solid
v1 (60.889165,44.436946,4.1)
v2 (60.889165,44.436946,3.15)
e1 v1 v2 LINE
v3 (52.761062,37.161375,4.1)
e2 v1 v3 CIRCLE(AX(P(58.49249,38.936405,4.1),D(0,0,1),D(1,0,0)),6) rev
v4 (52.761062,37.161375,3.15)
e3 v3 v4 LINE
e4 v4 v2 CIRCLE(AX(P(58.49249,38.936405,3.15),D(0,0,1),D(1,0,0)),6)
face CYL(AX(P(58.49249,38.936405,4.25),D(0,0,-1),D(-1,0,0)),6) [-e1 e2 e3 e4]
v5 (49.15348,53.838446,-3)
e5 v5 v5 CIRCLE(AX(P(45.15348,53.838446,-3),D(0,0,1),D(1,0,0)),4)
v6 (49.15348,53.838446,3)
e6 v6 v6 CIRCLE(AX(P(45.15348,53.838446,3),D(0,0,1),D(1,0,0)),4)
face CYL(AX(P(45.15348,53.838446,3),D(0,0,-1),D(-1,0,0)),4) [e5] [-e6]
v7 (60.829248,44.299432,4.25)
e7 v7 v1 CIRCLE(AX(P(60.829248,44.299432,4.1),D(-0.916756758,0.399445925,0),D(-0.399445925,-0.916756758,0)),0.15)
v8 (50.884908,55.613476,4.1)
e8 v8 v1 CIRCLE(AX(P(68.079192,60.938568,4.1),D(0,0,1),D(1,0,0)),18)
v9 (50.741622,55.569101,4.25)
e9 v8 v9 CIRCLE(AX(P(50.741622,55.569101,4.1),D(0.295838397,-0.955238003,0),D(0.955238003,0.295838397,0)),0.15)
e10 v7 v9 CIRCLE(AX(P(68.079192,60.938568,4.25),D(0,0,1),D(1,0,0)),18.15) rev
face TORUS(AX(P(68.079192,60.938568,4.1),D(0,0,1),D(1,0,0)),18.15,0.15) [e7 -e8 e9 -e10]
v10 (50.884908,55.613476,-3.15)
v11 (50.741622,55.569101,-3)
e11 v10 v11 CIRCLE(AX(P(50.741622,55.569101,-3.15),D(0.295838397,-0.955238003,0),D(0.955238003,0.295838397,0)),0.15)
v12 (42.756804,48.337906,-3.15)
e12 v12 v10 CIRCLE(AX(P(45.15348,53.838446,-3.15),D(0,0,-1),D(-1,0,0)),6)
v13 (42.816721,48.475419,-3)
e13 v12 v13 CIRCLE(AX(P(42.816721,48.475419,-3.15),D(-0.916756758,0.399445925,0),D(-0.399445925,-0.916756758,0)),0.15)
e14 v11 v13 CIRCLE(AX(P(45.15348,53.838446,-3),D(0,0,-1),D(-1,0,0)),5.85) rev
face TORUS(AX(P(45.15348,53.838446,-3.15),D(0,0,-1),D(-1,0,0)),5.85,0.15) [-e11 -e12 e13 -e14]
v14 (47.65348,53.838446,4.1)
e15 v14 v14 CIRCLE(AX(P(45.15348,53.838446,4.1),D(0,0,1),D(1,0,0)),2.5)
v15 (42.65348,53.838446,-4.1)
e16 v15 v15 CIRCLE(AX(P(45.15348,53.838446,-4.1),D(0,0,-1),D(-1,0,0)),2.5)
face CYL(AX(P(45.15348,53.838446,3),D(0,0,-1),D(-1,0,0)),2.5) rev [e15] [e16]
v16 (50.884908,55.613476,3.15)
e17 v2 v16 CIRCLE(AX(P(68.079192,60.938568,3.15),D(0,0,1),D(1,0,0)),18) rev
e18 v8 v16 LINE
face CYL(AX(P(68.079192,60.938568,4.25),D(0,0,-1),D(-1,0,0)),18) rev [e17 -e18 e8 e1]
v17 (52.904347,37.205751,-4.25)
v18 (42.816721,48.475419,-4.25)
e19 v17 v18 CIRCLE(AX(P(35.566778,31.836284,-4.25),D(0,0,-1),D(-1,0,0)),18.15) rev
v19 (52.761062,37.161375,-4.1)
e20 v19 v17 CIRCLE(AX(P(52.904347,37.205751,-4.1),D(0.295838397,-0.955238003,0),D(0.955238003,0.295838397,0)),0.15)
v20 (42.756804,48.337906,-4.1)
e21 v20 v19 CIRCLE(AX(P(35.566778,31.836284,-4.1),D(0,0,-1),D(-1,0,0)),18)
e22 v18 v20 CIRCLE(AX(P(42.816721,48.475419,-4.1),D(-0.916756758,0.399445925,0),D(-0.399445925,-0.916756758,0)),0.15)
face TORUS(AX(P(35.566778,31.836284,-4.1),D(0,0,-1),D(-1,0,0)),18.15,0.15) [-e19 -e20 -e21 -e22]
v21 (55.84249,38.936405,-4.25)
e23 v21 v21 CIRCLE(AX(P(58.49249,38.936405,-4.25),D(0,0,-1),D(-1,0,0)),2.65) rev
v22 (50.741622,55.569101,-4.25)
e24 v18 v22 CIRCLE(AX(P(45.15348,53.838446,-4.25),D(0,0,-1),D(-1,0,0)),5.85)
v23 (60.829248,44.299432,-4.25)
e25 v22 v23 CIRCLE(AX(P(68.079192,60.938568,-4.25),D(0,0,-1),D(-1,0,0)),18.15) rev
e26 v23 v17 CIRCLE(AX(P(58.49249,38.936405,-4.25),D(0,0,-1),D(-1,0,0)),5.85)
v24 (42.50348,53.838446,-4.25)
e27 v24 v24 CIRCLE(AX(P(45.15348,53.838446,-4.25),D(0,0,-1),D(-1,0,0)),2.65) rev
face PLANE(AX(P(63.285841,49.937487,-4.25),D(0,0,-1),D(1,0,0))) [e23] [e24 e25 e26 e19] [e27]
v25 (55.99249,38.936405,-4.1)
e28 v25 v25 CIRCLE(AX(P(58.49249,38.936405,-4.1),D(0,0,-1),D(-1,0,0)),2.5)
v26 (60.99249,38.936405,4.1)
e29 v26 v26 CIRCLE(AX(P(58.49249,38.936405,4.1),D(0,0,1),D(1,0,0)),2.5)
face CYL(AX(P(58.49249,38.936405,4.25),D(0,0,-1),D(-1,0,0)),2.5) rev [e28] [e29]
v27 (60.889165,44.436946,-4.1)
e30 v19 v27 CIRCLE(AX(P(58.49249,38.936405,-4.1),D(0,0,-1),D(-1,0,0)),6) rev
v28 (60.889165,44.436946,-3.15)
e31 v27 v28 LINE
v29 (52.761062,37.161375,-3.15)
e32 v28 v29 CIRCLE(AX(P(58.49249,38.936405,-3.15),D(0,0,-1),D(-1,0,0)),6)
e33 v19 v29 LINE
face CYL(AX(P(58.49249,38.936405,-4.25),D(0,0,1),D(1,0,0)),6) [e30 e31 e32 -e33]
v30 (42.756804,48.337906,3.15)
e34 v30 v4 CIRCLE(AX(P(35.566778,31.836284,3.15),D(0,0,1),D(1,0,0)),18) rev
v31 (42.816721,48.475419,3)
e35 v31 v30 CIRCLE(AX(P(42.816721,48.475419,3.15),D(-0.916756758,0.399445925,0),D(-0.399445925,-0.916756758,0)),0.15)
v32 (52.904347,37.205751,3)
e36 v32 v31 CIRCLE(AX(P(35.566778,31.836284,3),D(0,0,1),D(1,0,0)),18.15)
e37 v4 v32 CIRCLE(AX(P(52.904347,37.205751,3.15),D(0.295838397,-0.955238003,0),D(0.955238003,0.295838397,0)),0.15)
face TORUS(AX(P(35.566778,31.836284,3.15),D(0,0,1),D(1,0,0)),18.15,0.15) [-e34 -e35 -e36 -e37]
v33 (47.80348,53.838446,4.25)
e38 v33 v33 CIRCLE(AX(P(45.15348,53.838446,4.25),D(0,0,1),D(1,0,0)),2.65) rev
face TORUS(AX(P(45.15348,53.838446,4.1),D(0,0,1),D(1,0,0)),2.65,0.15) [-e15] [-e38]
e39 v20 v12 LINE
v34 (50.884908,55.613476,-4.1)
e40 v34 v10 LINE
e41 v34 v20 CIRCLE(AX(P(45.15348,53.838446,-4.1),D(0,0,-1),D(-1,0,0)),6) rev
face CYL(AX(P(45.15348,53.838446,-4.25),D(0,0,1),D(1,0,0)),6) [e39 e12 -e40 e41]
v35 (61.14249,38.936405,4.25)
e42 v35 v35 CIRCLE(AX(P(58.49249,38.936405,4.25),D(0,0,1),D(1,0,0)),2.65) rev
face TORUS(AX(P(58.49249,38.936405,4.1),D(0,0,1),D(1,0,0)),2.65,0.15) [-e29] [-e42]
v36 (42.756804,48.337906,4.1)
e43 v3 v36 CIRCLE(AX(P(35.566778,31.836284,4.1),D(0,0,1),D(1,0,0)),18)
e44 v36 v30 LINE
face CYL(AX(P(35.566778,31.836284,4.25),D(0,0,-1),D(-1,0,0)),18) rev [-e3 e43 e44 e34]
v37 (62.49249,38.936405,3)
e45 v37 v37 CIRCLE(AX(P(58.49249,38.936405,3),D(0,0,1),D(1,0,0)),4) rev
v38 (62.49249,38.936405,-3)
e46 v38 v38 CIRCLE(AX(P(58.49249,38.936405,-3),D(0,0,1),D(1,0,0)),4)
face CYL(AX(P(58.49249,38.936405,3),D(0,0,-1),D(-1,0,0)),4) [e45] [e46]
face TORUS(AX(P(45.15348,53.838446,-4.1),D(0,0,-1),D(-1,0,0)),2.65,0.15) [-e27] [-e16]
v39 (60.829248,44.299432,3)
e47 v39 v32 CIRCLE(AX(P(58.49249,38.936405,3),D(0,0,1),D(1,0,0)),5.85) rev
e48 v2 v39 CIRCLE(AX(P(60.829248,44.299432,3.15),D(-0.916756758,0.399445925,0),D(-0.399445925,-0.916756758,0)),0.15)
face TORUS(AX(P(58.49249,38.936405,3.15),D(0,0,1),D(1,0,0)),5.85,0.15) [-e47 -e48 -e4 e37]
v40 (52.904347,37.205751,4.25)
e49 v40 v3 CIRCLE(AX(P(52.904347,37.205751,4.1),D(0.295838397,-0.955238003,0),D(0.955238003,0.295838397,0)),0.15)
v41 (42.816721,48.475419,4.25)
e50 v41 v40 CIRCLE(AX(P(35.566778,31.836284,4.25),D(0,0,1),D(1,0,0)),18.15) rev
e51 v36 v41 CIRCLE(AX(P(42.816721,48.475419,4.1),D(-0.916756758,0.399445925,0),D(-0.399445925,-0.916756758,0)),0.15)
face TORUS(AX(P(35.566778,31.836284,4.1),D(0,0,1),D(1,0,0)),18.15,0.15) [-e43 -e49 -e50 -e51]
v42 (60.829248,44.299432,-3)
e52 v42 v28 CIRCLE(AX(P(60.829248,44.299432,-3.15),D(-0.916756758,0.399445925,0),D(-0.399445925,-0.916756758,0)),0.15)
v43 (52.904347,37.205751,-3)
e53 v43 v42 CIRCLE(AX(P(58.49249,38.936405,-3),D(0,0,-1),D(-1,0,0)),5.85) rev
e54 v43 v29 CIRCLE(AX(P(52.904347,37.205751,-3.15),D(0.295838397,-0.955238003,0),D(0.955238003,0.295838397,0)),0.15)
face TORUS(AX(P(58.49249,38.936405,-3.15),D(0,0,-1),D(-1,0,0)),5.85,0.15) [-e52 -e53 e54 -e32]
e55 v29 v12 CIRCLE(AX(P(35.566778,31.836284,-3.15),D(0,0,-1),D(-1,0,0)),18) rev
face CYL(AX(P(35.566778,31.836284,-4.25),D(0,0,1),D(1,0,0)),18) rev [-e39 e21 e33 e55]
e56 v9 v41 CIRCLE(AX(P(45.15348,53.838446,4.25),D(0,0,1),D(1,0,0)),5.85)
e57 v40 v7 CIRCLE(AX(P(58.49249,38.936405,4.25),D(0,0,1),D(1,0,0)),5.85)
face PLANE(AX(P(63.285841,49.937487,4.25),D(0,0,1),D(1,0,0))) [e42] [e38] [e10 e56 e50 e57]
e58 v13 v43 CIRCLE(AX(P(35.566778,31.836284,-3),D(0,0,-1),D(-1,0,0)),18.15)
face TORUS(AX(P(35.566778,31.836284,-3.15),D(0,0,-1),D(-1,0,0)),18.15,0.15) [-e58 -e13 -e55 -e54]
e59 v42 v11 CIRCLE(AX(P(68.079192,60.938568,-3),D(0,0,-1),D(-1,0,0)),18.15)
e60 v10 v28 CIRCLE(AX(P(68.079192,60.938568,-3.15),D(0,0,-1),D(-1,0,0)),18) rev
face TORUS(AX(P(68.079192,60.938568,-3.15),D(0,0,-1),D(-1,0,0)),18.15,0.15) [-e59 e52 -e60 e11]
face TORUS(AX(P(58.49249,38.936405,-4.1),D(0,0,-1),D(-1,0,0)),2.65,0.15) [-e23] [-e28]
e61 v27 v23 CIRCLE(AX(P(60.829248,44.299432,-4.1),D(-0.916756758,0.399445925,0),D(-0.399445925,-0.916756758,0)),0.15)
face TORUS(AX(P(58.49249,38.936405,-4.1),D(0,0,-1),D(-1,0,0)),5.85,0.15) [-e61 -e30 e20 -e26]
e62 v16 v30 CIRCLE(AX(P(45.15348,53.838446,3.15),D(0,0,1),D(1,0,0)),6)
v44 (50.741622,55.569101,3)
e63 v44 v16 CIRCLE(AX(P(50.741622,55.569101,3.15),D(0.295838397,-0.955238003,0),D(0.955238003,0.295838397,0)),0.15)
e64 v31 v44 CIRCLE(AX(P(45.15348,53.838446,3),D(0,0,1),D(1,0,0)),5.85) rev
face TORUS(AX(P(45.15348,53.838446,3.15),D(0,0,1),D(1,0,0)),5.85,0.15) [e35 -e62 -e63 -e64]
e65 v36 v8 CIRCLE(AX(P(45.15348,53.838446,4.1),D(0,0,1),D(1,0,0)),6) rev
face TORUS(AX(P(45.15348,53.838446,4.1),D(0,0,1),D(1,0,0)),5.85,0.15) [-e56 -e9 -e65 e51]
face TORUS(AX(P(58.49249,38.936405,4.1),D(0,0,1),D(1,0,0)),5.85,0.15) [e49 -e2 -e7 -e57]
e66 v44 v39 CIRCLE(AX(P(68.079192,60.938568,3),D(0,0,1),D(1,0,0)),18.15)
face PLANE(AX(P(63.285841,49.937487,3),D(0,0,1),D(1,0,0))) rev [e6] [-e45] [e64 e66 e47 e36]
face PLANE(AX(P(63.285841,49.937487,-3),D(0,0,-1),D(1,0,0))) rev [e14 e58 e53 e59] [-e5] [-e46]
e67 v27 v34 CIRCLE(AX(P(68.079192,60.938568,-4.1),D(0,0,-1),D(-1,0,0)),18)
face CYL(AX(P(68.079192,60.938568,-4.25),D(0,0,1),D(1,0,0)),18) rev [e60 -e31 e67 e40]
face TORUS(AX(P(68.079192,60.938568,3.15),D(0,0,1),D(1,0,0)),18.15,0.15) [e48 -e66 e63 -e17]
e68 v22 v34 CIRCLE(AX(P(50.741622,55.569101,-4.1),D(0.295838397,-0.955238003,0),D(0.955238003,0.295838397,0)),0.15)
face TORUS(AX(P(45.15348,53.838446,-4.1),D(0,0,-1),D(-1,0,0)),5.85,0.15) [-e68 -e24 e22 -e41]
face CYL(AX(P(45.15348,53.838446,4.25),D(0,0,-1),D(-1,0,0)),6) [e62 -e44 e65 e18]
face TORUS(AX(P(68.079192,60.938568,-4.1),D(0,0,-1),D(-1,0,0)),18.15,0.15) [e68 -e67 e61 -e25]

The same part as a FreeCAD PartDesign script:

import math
import FreeCAD as App
import Part
import Sketcher

V = App.Vector
Q = App.Units.Quantity


def edges_at(feature, points):
    """Names of the edges that pass closest to the given points."""
    edges = feature.Shape.Edges
    near = lambda p: min(range(len(edges)), key=lambda i: edges[i].distToShape(Part.Vertex(*p))[0])
    return sorted({f"Edge{near(p) + 1}" for p in points})

doc = App.newDocument("Part")
params = doc.addObject("Spreadsheet::Sheet", "Params")
for row, (alias, value) in enumerate([
    ("sketch1_diameter", "8 mm"),
    ("sketch1_diameter2", "5 mm"),
    ("pad1_length", "6 mm"),
    ("sketch2_diameter", "8 mm"),
    ("sketch2_diameter2", "5 mm"),
    ("pad2_length", "6 mm"),
    ("sketch3_diameter", "5 mm"),
    ("sketch3_radius", "18 mm"),
    ("sketch3_radius2", "6 mm"),
    ("pad3_length", "1.25 mm"),
    ("fillet_radius", "0.15 mm"),
], start=1):
    params.set(f"A{row}", alias)
    params.set(f"B{row}", "=" + value)
    params.setAlias(f"B{row}", alias)

body = doc.addObject("PartDesign::Body", "Body")

# Sketch on XY plane
sketch1 = body.newObject("Sketcher::SketchObject", "Sketch")
sketch1.AttachmentSupport = (doc.getObject("XY_Plane"), [""])
sketch1.MapMode = "FlatFace"
sketch1.addGeometry(Part.Circle(V(45.2, 53.8, 0), V(0, 0, 1), 4), False)
sketch1.addGeometry(Part.Circle(V(45.2, 53.8, 0), V(0, 0, 1), 2.5), False)
sketch1.addConstraint(Sketcher.Constraint("Coincident", 1, 3, 0, 3))
sketch1.addConstraint(Sketcher.Constraint("Diameter", 0, Q("8 mm")))
sketch1.addConstraint(Sketcher.Constraint("Diameter", 1, Q("5 mm")))
sketch1.addConstraint(Sketcher.Constraint("DistanceX", -1, 1, 0, 3, Q("45.15348 mm")))
sketch1.addConstraint(Sketcher.Constraint("DistanceY", -1, 1, 0, 3, Q("53.838446 mm")))
sketch1.setExpression("Constraints[1]", "Params.sketch1_diameter")
sketch1.setExpression("Constraints[2]", "Params.sketch1_diameter2")
pad1 = body.newObject("PartDesign::Pad", "Pad")
pad1.Profile = sketch1
pad1.setExpression("Length", "Params.pad1_length")
pad1.Midplane = True
body2 = doc.addObject("PartDesign::Body", "Body001")

# Sketch on XY plane
sketch2 = body2.newObject("Sketcher::SketchObject", "Sketch001")
sketch2.AttachmentSupport = (doc.getObject("XY_Plane001"), [""])
sketch2.MapMode = "FlatFace"
sketch2.addGeometry(Part.Circle(V(58.5, 38.9, 0), V(0, 0, 1), 4), False)
sketch2.addGeometry(Part.Circle(V(58.5, 38.9, 0), V(0, 0, 1), 2.5), False)
sketch2.addConstraint(Sketcher.Constraint("Coincident", 1, 3, 0, 3))
sketch2.addConstraint(Sketcher.Constraint("Diameter", 0, Q("8 mm")))
sketch2.addConstraint(Sketcher.Constraint("Diameter", 1, Q("5 mm")))
sketch2.addConstraint(Sketcher.Constraint("DistanceX", -1, 1, 0, 3, Q("58.49249 mm")))
sketch2.addConstraint(Sketcher.Constraint("DistanceY", -1, 1, 0, 3, Q("38.936405 mm")))
sketch2.setExpression("Constraints[1]", "Params.sketch2_diameter")
sketch2.setExpression("Constraints[2]", "Params.sketch2_diameter2")
pad2 = body2.newObject("PartDesign::Pad", "Pad001")
pad2.Profile = sketch2
pad2.setExpression("Length", "Params.pad2_length")
pad2.Midplane = True
body.AllowCompound = True
doc.recompute()

boolean = body.newObject("PartDesign::Boolean", "Boolean")
boolean.Type = "Fuse"
boolean.addObjects([body2])

# Sketch on XY plane
sketch3 = body.newObject("Sketcher::SketchObject", "Sketch002")
sketch3.AttachmentSupport = (doc.getObject("XY_Plane"), [""])
sketch3.MapMode = "FlatFace"
sketch3.AttachmentOffset = App.Placement(V(0, 0, 3), App.Rotation())
sketch3.addGeometry(Part.ArcOfCircle(Part.Circle(V(35.6, 31.8, 0), V(0, 0, 1), 18), math.radians(17), math.radians(66)), False)
sketch3.addGeometry(Part.ArcOfCircle(Part.Circle(V(58.5, 38.9, 0), V(0, 0, 1), 6), math.radians(-163), math.radians(66)), False)
sketch3.addGeometry(Part.ArcOfCircle(Part.Circle(V(68.1, 60.9, 0), V(0, 0, 1), 18), math.radians(-163), math.radians(-114)), False)
sketch3.addGeometry(Part.ArcOfCircle(Part.Circle(V(45.2, 53.8, 0), V(0, 0, 1), 6), math.radians(17), math.radians(246)), False)
sketch3.addGeometry(Part.Circle(V(58.5, 38.9, 0), V(0, 0, 1), 2.5), False)
sketch3.addGeometry(Part.Circle(V(45.2, 53.8, 0), V(0, 0, 1), 2.5), False)
sketch3.addConstraint(Sketcher.Constraint("Tangent", 0, 1, 1, 1))
sketch3.addConstraint(Sketcher.Constraint("Tangent", 1, 2, 2, 2))
sketch3.addConstraint(Sketcher.Constraint("Tangent", 2, 1, 3, 1))
sketch3.addConstraint(Sketcher.Constraint("Tangent", 3, 2, 0, 2))
sketch3.addConstraint(Sketcher.Constraint("Coincident", 4, 3, 1, 3))
sketch3.addConstraint(Sketcher.Constraint("Coincident", 5, 3, 3, 3))
sketch3.addConstraint(Sketcher.Constraint("Equal", 0, 2))
sketch3.addConstraint(Sketcher.Constraint("Equal", 1, 3))
sketch3.addConstraint(Sketcher.Constraint("Equal", 4, 5))
sketch3.addConstraint(Sketcher.Constraint("Diameter", 4, Q("5 mm")))
sketch3.addConstraint(Sketcher.Constraint("Radius", 0, Q("18 mm")))
sketch3.addConstraint(Sketcher.Constraint("Radius", 1, Q("6 mm")))
sketch3.addConstraint(Sketcher.Constraint("DistanceY", 1, 2, 3, 3, Q("9.4015 mm")))
sketch3.addConstraint(Sketcher.Constraint("DistanceX", -1, 1, 1, 3, Q("58.49249 mm")))
sketch3.addConstraint(Sketcher.Constraint("DistanceX", -1, 1, 2, 3, Q("68.079192 mm")))
sketch3.addConstraint(Sketcher.Constraint("DistanceY", -1, 1, 0, 3, Q("31.836284 mm")))
sketch3.setExpression("Constraints[9]", "Params.sketch3_diameter")
sketch3.setExpression("Constraints[10]", "Params.sketch3_radius")
sketch3.setExpression("Constraints[11]", "Params.sketch3_radius2")
pad3 = body.newObject("PartDesign::Pad", "Pad002")
pad3.Profile = sketch3
pad3.setExpression("Length", "Params.pad3_length")
doc.recompute()

mirrored = body.newObject("PartDesign::Mirrored", "Mirrored")
mirrored.Originals = [pad3]
mirrored.MirrorPlane = (doc.getObject("XY_Plane"), [""])
body.Tip = mirrored
doc.recompute()

fillet = body.newObject("PartDesign::Fillet", "Fillet")
fillet.Base = (mirrored, edges_at(mirrored, [
    (62.494, 34.466, -4.25),
    (48.979, 43.841, -4.25),
    (41.152, 58.309, -4.25),
    (54.667, 48.933, -4.25),
    (55.992, 38.936, -4.25),
    (42.653, 53.838, -4.25),
    (62.494, 34.466, -3),
    (54.667, 48.933, -3),
    (41.152, 58.309, -3),
    (48.979, 43.841, -3),
    (62.494, 34.466, 4.25),
    (54.667, 48.933, 4.25),
    (41.152, 58.309, 4.25),
    (48.979, 43.841, 4.25),
    (62.494, 34.466, 3),
    (54.667, 48.933, 3),
    (41.152, 58.309, 3),
    (48.979, 43.841, 3),
    (42.653, 53.838, 4.25),
    (55.992, 38.936, 4.25),
]))
fillet.setExpression("Radius", "Params.fillet_radius")

doc.recompute()
